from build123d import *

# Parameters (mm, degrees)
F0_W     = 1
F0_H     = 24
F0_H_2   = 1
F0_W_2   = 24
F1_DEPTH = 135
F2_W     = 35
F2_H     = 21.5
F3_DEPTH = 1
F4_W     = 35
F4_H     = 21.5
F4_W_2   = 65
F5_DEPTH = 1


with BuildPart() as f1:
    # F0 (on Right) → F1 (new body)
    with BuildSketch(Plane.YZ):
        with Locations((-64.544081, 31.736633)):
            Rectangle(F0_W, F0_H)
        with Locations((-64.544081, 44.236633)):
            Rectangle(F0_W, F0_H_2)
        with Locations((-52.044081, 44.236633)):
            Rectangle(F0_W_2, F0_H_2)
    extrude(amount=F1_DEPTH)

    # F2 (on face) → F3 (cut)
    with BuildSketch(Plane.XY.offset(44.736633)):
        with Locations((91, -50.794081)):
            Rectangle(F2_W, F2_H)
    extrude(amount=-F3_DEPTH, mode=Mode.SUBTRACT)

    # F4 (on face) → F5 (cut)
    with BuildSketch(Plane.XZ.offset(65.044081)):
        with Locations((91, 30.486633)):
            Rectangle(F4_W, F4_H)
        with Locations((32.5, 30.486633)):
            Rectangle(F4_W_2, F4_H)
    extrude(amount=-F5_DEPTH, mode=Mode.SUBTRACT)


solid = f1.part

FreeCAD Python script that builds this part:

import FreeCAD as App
import Part
import Sketcher
Q = App.Units.Quantity

doc = App.newDocument("Part")
body = doc.addObject("PartDesign::Body", "Body")

# Sketch on YZ plane
sketch1 = body.newObject("Sketcher::SketchObject", "Sketch")
sketch1.AttachmentSupport = (doc.getObject("YZ_Plane"), [""])
sketch1.MapMode = "FlatFace"
sketch1.addGeometry([
    Part.LineSegment(App.Vector(-65, 19.7, 0), App.Vector(-64, 19.7, 0)),  # 0
    Part.LineSegment(App.Vector(-64, 19.7, 0), App.Vector(-64, 43.7, 0)),  # 1
    Part.LineSegment(App.Vector(-64, 43.7, 0), App.Vector(-40, 43.7, 0)),  # 2
    Part.LineSegment(App.Vector(-40, 43.7, 0), App.Vector(-40, 44.7, 0)),  # 3
    Part.LineSegment(App.Vector(-40, 44.7, 0), App.Vector(-65, 44.7, 0)),  # 4
    Part.LineSegment(App.Vector(-65, 44.7, 0), App.Vector(-65, 19.7, 0)),  # 5
], False)
sketch1.addConstraint([
    Sketcher.Constraint("Coincident", 0, 2, 1, 1),
    Sketcher.Constraint("Coincident", 1, 2, 2, 1),
    Sketcher.Constraint("Coincident", 2, 2, 3, 1),
    Sketcher.Constraint("Coincident", 3, 2, 4, 1),
    Sketcher.Constraint("Coincident", 4, 2, 5, 1),
    Sketcher.Constraint("Coincident", 5, 2, 0, 1),
    Sketcher.Constraint("Horizontal", 0),
    Sketcher.Constraint("Vertical", 1),
    Sketcher.Constraint("Horizontal", 2),
    Sketcher.Constraint("Vertical", 3),
    Sketcher.Constraint("Horizontal", 4),
    Sketcher.Constraint("Vertical", 5),
    Sketcher.Constraint("Equal", 2, 1),
    Sketcher.Constraint("Equal", 0, 3),
    Sketcher.Constraint("DistanceX", 0, 1, 0, 2, Q("1 mm")),
    Sketcher.Constraint("DistanceX", 2, 1, 2, 2, Q("24 mm")),
    Sketcher.Constraint("DistanceX", 0, 2, -1, 1, Q("64.044081 mm")),
    Sketcher.Constraint("DistanceY", -1, 1, 0, 2, Q("19.736633 mm")),
])
pad1 = body.newObject("PartDesign::Pad", "Pad")
pad1.Profile = sketch1
pad1.Length = 135

# Sketch on XY plane
sketch2 = body.newObject("Sketcher::SketchObject", "Sketch001")
sketch2.AttachmentSupport = (doc.getObject("XY_Plane"), [""])
sketch2.MapMode = "FlatFace"
sketch2.AttachmentOffset = App.Placement(App.Vector(0, 0, 44.736633), App.Rotation())
sketch2.addGeometry([
    Part.LineSegment(App.Vector(74, -40, 0), App.Vector(74, -62, 0)),
    Part.LineSegment(App.Vector(74, -62, 0), App.Vector(108, -62, 0)),
    Part.LineSegment(App.Vector(108, -62, 0), App.Vector(108, -40, 0)),
    Part.LineSegment(App.Vector(108, -40, 0), App.Vector(74, -40, 0)),
], False)
sketch2.addConstraint([
    Sketcher.Constraint("Coincident", 0, 2, 1, 1),
    Sketcher.Constraint("Coincident", 1, 2, 2, 1),
    Sketcher.Constraint("Coincident", 2, 2, 3, 1),
    Sketcher.Constraint("Coincident", 3, 2, 0, 1),
    Sketcher.Constraint("Vertical", 0),
    Sketcher.Constraint("Horizontal", 1),
    Sketcher.Constraint("Vertical", 2),
    Sketcher.Constraint("Horizontal", 3),
    Sketcher.Constraint("DistanceX", 1, 1, 1, 2, Q("35 mm")),
    Sketcher.Constraint("DistanceY", 0, 2, 0, 1, Q("21.5 mm")),
    Sketcher.Constraint("DistanceX", -1, 1, 0, 2, Q("73.5 mm")),
    Sketcher.Constraint("DistanceY", 0, 2, -1, 1, Q("61.544081 mm")),
])
pocket1 = body.newObject("PartDesign::Pocket", "Pocket")
pocket1.Profile = sketch2
pocket1.Length = 1

# Sketch on XZ plane
sketch3 = body.newObject("Sketcher::SketchObject", "Sketch002")
sketch3.AttachmentSupport = (doc.getObject("XZ_Plane"), [""])
sketch3.MapMode = "FlatFace"
sketch3.AttachmentOffset = App.Placement(App.Vector(0, 0, 65.044081), App.Rotation())
sketch3.addGeometry([
    Part.LineSegment(App.Vector(74, 41, 0), App.Vector(74, 20, 0)),  # 0
    Part.LineSegment(App.Vector(74, 20, 0), App.Vector(108, 20, 0)),  # 1
    Part.LineSegment(App.Vector(108, 20, 0), App.Vector(108, 41, 0)),  # 2
    Part.LineSegment(App.Vector(108, 41, 0), App.Vector(74, 41, 0)),  # 3
    Part.LineSegment(App.Vector(0, 41, 0), App.Vector(0, 20, 0)),  # 4
    Part.LineSegment(App.Vector(0, 20, 0), App.Vector(65, 20, 0)),  # 5
    Part.LineSegment(App.Vector(65, 20, 0), App.Vector(65, 41, 0)),  # 6
    Part.LineSegment(App.Vector(65, 41, 0), App.Vector(0, 41, 0)),  # 7
], False)
sketch3.addConstraint([
    Sketcher.Constraint("Coincident", 0, 2, 1, 1),
    Sketcher.Constraint("Coincident", 1, 2, 2, 1),
    Sketcher.Constraint("Coincident", 2, 2, 3, 1),
    Sketcher.Constraint("Coincident", 3, 2, 0, 1),
    Sketcher.Constraint("Coincident", 4, 2, 5, 1),
    Sketcher.Constraint("Coincident", 5, 2, 6, 1),
    Sketcher.Constraint("Coincident", 6, 2, 7, 1),
    Sketcher.Constraint("Coincident", 7, 2, 4, 1),
    Sketcher.Constraint("Vertical", 0),
    Sketcher.Constraint("Horizontal", 1),
    Sketcher.Constraint("Vertical", 2),
    Sketcher.Constraint("Horizontal", 3),
    Sketcher.Constraint("Vertical", 4),
    Sketcher.Constraint("Horizontal", 5),
    Sketcher.Constraint("Vertical", 6),
    Sketcher.Constraint("Horizontal", 7),
    Sketcher.Constraint("PointOnObject", 4, 2, -2),
    Sketcher.Constraint("Horizontal", 1, 2, 4, 2),
    Sketcher.Constraint("Horizontal", 3, 2, 6, 2),
    Sketcher.Constraint("DistanceX", 1, 1, 1, 2, Q("35 mm")),
    Sketcher.Constraint("DistanceX", 5, 1, 5, 2, Q("65 mm")),
    Sketcher.Constraint("DistanceY", 0, 2, 0, 1, Q("21.5 mm")),
    Sketcher.Constraint("DistanceX", -1, 1, 0, 2, Q("73.5 mm")),
    Sketcher.Constraint("DistanceY", -1, 1, 0, 2, Q("19.736633 mm")),
])
pocket2 = body.newObject("PartDesign::Pocket", "Pocket001")
pocket2.Profile = sketch3
pocket2.Length = 1

doc.recompute()
